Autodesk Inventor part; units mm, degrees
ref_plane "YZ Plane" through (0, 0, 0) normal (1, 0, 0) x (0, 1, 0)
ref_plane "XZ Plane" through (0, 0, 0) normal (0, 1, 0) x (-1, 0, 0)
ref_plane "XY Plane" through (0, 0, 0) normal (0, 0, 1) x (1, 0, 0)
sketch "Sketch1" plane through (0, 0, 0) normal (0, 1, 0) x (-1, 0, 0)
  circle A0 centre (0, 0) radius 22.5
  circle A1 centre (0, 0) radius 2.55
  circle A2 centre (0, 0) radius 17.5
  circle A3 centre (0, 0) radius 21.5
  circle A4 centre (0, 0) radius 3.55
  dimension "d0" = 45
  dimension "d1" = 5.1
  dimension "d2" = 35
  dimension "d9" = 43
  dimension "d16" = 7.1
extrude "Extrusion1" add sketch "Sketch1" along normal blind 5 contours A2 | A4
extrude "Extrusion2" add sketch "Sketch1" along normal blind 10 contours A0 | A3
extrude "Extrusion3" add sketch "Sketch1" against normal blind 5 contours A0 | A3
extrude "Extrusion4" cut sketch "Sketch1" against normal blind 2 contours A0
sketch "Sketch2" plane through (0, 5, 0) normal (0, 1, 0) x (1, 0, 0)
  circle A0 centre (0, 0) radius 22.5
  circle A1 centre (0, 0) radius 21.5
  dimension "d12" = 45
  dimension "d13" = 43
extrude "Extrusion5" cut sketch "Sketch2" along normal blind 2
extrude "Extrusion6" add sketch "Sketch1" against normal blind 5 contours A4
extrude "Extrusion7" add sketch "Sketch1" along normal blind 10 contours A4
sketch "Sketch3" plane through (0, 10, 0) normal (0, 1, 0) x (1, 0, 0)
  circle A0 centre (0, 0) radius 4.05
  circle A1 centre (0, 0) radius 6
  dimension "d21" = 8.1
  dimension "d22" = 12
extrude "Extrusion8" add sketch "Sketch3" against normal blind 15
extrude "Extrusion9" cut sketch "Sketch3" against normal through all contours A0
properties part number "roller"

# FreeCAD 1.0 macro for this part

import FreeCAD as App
import Part
import Sketcher

V = App.Vector
Q = App.Units.Quantity

doc = App.newDocument("Part")
body = doc.addObject("PartDesign::Body", "Body")

sketch1 = body.newObject("Sketcher::SketchObject", "Sketch")
sketch1.AttachmentSupport = (doc.getObject("XZ_Plane"), [""])
sketch1.MapMode = "FlatFace"
sketch1.addGeometry([
    Part.Circle(V(0, 0, 0), V(0, 0, 1), 17.5),
    Part.Circle(V(0, 0, 0), V(0, 0, 1), 2.5),
], False)
sketch1.addConstraint([
    Sketcher.Constraint("Coincident", 0, 3, -1, 1),
    Sketcher.Constraint("Coincident", 1, 3, -1, 1),
    Sketcher.Constraint("Diameter", 0, Q("35 mm")),
    Sketcher.Constraint("Diameter", 1, Q("5.1 mm")),
])
pad1 = body.newObject("PartDesign::Pad", "Pad")
pad1.Profile = sketch1
pad1.Length = 5
pad1.Reversed = True

sketch2 = body.newObject("Sketcher::SketchObject", "Sketch001")
sketch2.AttachmentSupport = (doc.getObject("XZ_Plane"), [""])
sketch2.MapMode = "FlatFace"
sketch2.addGeometry([
    Part.Circle(V(0, 0, 0), V(0, 0, 1), 22),
    Part.Circle(V(0, 0, 0), V(0, 0, 1), 18),
], False)
sketch2.addConstraint([
    Sketcher.Constraint("Coincident", 0, 3, -1, 1),
    Sketcher.Constraint("Coincident", 1, 3, -1, 1),
    Sketcher.Constraint("Diameter", 0, Q("45 mm")),
    Sketcher.Constraint("Diameter", 1, Q("35 mm")),
])
pad2 = body.newObject("PartDesign::Pad", "Pad001")
pad2.Profile = sketch2
pad2.Length = 10
pad2.Reversed = True

sketch3 = body.newObject("Sketcher::SketchObject", "Sketch002")
sketch3.AttachmentSupport = (doc.getObject("XZ_Plane"), [""])
sketch3.MapMode = "FlatFace"
sketch3.addGeometry([
    Part.Circle(V(0, 0, 0), V(0, 0, 1), 22),
    Part.Circle(V(0, 0, 0), V(0, 0, 1), 18),
], False)
sketch3.addConstraint([
    Sketcher.Constraint("Coincident", 0, 3, -1, 1),
    Sketcher.Constraint("Coincident", 1, 3, -1, 1),
    Sketcher.Constraint("Diameter", 0, Q("45 mm")),
    Sketcher.Constraint("Diameter", 1, Q("35 mm")),
])
pad3 = body.newObject("PartDesign::Pad", "Pad002")
pad3.Profile = sketch3
pad3.Length = 5

sketch4 = body.newObject("Sketcher::SketchObject", "Sketch003")
sketch4.AttachmentSupport = (doc.getObject("XZ_Plane"), [""])
sketch4.MapMode = "FlatFace"
sketch4.addGeometry([
    Part.Circle(V(0, 0, 0), V(0, 0, 1), 22),
    Part.Circle(V(0, 0, 0), V(0, 0, 1), 22),
], False)
sketch4.addConstraint([
    Sketcher.Constraint("Coincident", 0, 3, -1, 1),
    Sketcher.Constraint("Coincident", 1, 3, -1, 1),
    Sketcher.Constraint("Diameter", 0, Q("45 mm")),
    Sketcher.Constraint("Diameter", 1, Q("43 mm")),
])
pocket1 = body.newObject("PartDesign::Pocket", "Pocket")
pocket1.Profile = sketch4
pocket1.Length = 2
pocket1.Reversed = True

sketch5 = body.newObject("Sketcher::SketchObject", "Sketch004")
sketch5.AttachmentSupport = (doc.getObject("XZ_Plane"), [""])
sketch5.MapMode = "FlatFace"
sketch5.AttachmentOffset = App.Placement(V(0, 0, -5), App.Rotation())
sketch5.addGeometry([
    Part.Circle(V(0, 0, 0), V(0, 0, 1), 22),
    Part.Circle(V(0, 0, 0), V(0, 0, 1), 22),
], False)
sketch5.addConstraint([
    Sketcher.Constraint("Coincident", 0, 3, -1, 1),
    Sketcher.Constraint("Coincident", 1, 3, -1, 1),
    Sketcher.Constraint("Diameter", 0, Q("45 mm")),
    Sketcher.Constraint("Diameter", 1, Q("43 mm")),
])
pocket2 = body.newObject("PartDesign::Pocket", "Pocket001")
pocket2.Profile = sketch5
pocket2.Length = 2

sketch6 = body.newObject("Sketcher::SketchObject", "Sketch005")
sketch6.AttachmentSupport = (doc.getObject("XZ_Plane"), [""])
sketch6.MapMode = "FlatFace"
sketch6.addGeometry([
    Part.Circle(V(0, 0, 0), V(0, 0, 1), 3.5),
    Part.Circle(V(0, 0, 0), V(0, 0, 1), 2.5),
], False)
sketch6.addConstraint([
    Sketcher.Constraint("Coincident", 0, 3, -1, 1),
    Sketcher.Constraint("Coincident", 1, 3, -1, 1),
    Sketcher.Constraint("Diameter", 0, Q("7.1 mm")),
    Sketcher.Constraint("Diameter", 1, Q("5.1 mm")),
])
pad4 = body.newObject("PartDesign::Pad", "Pad003")
pad4.Profile = sketch6
pad4.Length = 5

sketch7 = body.newObject("Sketcher::SketchObject", "Sketch006")
sketch7.AttachmentSupport = (doc.getObject("XZ_Plane"), [""])
sketch7.MapMode = "FlatFace"
sketch7.addGeometry([
    Part.Circle(V(0, 0, 0), V(0, 0, 1), 3.5),
    Part.Circle(V(0, 0, 0), V(0, 0, 1), 2.5),
], False)
sketch7.addConstraint([
    Sketcher.Constraint("Coincident", 0, 3, -1, 1),
    Sketcher.Constraint("Coincident", 1, 3, -1, 1),
    Sketcher.Constraint("Diameter", 0, Q("7.1 mm")),
    Sketcher.Constraint("Diameter", 1, Q("5.1 mm")),
])
pad5 = body.newObject("PartDesign::Pad", "Pad004")
pad5.Profile = sketch7
pad5.Length = 10
pad5.Reversed = True

sketch8 = body.newObject("Sketcher::SketchObject", "Sketch007")
sketch8.AttachmentSupport = (doc.getObject("XZ_Plane"), [""])
sketch8.MapMode = "FlatFace"
sketch8.AttachmentOffset = App.Placement(V(0, 0, -10), App.Rotation())
sketch8.addGeometry([
    Part.Circle(V(0, 0, 0), V(0, 0, 1), 6),
    Part.Circle(V(0, 0, 0), V(0, 0, 1), 4),
], False)
sketch8.addConstraint([
    Sketcher.Constraint("Coincident", 0, 3, -1, 1),
    Sketcher.Constraint("Coincident", 1, 3, -1, 1),
    Sketcher.Constraint("Diameter", 0, Q("12 mm")),
    Sketcher.Constraint("Diameter", 1, Q("8.1 mm")),
])
pad6 = body.newObject("PartDesign::Pad", "Pad005")
pad6.Profile = sketch8
pad6.Length = 15

sketch9 = body.newObject("Sketcher::SketchObject", "Sketch008")
sketch9.AttachmentSupport = (doc.getObject("XZ_Plane"), [""])
sketch9.MapMode = "FlatFace"
sketch9.AttachmentOffset = App.Placement(V(0, 0, -10), App.Rotation())
sketch9.addGeometry(Part.Circle(V(0, 0, 0), V(0, 0, 1), 4), False)
sketch9.addConstraint([
    Sketcher.Constraint("Coincident", 0, 3, -1, 1),
    Sketcher.Constraint("Diameter", 0, Q("8.1 mm")),
])
pocket3 = body.newObject("PartDesign::Pocket", "Pocket002")
pocket3.Profile = sketch9
pocket3.Type = "ThroughAll"
pocket3.Reversed = True

doc.recompute()
